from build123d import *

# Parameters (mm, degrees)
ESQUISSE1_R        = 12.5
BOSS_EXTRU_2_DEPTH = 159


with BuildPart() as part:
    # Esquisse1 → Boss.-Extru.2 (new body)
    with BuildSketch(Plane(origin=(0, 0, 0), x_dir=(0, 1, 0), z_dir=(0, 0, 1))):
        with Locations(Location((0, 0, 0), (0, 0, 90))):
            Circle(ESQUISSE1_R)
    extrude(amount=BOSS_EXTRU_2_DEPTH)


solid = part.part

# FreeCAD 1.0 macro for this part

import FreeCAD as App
import Part
import Sketcher
from FreeCAD import Vector
Q = App.Units.Quantity

doc = App.newDocument("Part")
params = doc.addObject("Spreadsheet::Sheet", "Params")
for row, (alias, value) in enumerate([
    ("sketch1_diameter", "25 mm"),
    ("pad1_length", "159 mm"),
], start=1):
    params.set(f"A{row}", alias)
    params.set(f"B{row}", "=" + value)
    params.setAlias(f"B{row}", alias)

body = doc.addObject("PartDesign::Body", "Body")

sketch1 = body.newObject("Sketcher::SketchObject", "Sketch")
sketch1.AttachmentSupport = (doc.getObject("XY_Plane"), [""])
sketch1.MapMode = "FlatFace"
sketch1.addGeometry(Part.Circle(Vector(0, 0, 0), Vector(0, 0, 1), 12), False)
sketch1.addConstraint(Sketcher.Constraint("Coincident", 0, 3, -1, 1))
sketch1.addConstraint(Sketcher.Constraint("Diameter", 0, Q("25 mm")))
sketch1.setExpression("Constraints[1]", "Params.sketch1_diameter")
pad1 = body.newObject("PartDesign::Pad", "Pad")
pad1.Profile = sketch1
pad1.setExpression("Length", "Params.pad1_length")

doc.recompute()
